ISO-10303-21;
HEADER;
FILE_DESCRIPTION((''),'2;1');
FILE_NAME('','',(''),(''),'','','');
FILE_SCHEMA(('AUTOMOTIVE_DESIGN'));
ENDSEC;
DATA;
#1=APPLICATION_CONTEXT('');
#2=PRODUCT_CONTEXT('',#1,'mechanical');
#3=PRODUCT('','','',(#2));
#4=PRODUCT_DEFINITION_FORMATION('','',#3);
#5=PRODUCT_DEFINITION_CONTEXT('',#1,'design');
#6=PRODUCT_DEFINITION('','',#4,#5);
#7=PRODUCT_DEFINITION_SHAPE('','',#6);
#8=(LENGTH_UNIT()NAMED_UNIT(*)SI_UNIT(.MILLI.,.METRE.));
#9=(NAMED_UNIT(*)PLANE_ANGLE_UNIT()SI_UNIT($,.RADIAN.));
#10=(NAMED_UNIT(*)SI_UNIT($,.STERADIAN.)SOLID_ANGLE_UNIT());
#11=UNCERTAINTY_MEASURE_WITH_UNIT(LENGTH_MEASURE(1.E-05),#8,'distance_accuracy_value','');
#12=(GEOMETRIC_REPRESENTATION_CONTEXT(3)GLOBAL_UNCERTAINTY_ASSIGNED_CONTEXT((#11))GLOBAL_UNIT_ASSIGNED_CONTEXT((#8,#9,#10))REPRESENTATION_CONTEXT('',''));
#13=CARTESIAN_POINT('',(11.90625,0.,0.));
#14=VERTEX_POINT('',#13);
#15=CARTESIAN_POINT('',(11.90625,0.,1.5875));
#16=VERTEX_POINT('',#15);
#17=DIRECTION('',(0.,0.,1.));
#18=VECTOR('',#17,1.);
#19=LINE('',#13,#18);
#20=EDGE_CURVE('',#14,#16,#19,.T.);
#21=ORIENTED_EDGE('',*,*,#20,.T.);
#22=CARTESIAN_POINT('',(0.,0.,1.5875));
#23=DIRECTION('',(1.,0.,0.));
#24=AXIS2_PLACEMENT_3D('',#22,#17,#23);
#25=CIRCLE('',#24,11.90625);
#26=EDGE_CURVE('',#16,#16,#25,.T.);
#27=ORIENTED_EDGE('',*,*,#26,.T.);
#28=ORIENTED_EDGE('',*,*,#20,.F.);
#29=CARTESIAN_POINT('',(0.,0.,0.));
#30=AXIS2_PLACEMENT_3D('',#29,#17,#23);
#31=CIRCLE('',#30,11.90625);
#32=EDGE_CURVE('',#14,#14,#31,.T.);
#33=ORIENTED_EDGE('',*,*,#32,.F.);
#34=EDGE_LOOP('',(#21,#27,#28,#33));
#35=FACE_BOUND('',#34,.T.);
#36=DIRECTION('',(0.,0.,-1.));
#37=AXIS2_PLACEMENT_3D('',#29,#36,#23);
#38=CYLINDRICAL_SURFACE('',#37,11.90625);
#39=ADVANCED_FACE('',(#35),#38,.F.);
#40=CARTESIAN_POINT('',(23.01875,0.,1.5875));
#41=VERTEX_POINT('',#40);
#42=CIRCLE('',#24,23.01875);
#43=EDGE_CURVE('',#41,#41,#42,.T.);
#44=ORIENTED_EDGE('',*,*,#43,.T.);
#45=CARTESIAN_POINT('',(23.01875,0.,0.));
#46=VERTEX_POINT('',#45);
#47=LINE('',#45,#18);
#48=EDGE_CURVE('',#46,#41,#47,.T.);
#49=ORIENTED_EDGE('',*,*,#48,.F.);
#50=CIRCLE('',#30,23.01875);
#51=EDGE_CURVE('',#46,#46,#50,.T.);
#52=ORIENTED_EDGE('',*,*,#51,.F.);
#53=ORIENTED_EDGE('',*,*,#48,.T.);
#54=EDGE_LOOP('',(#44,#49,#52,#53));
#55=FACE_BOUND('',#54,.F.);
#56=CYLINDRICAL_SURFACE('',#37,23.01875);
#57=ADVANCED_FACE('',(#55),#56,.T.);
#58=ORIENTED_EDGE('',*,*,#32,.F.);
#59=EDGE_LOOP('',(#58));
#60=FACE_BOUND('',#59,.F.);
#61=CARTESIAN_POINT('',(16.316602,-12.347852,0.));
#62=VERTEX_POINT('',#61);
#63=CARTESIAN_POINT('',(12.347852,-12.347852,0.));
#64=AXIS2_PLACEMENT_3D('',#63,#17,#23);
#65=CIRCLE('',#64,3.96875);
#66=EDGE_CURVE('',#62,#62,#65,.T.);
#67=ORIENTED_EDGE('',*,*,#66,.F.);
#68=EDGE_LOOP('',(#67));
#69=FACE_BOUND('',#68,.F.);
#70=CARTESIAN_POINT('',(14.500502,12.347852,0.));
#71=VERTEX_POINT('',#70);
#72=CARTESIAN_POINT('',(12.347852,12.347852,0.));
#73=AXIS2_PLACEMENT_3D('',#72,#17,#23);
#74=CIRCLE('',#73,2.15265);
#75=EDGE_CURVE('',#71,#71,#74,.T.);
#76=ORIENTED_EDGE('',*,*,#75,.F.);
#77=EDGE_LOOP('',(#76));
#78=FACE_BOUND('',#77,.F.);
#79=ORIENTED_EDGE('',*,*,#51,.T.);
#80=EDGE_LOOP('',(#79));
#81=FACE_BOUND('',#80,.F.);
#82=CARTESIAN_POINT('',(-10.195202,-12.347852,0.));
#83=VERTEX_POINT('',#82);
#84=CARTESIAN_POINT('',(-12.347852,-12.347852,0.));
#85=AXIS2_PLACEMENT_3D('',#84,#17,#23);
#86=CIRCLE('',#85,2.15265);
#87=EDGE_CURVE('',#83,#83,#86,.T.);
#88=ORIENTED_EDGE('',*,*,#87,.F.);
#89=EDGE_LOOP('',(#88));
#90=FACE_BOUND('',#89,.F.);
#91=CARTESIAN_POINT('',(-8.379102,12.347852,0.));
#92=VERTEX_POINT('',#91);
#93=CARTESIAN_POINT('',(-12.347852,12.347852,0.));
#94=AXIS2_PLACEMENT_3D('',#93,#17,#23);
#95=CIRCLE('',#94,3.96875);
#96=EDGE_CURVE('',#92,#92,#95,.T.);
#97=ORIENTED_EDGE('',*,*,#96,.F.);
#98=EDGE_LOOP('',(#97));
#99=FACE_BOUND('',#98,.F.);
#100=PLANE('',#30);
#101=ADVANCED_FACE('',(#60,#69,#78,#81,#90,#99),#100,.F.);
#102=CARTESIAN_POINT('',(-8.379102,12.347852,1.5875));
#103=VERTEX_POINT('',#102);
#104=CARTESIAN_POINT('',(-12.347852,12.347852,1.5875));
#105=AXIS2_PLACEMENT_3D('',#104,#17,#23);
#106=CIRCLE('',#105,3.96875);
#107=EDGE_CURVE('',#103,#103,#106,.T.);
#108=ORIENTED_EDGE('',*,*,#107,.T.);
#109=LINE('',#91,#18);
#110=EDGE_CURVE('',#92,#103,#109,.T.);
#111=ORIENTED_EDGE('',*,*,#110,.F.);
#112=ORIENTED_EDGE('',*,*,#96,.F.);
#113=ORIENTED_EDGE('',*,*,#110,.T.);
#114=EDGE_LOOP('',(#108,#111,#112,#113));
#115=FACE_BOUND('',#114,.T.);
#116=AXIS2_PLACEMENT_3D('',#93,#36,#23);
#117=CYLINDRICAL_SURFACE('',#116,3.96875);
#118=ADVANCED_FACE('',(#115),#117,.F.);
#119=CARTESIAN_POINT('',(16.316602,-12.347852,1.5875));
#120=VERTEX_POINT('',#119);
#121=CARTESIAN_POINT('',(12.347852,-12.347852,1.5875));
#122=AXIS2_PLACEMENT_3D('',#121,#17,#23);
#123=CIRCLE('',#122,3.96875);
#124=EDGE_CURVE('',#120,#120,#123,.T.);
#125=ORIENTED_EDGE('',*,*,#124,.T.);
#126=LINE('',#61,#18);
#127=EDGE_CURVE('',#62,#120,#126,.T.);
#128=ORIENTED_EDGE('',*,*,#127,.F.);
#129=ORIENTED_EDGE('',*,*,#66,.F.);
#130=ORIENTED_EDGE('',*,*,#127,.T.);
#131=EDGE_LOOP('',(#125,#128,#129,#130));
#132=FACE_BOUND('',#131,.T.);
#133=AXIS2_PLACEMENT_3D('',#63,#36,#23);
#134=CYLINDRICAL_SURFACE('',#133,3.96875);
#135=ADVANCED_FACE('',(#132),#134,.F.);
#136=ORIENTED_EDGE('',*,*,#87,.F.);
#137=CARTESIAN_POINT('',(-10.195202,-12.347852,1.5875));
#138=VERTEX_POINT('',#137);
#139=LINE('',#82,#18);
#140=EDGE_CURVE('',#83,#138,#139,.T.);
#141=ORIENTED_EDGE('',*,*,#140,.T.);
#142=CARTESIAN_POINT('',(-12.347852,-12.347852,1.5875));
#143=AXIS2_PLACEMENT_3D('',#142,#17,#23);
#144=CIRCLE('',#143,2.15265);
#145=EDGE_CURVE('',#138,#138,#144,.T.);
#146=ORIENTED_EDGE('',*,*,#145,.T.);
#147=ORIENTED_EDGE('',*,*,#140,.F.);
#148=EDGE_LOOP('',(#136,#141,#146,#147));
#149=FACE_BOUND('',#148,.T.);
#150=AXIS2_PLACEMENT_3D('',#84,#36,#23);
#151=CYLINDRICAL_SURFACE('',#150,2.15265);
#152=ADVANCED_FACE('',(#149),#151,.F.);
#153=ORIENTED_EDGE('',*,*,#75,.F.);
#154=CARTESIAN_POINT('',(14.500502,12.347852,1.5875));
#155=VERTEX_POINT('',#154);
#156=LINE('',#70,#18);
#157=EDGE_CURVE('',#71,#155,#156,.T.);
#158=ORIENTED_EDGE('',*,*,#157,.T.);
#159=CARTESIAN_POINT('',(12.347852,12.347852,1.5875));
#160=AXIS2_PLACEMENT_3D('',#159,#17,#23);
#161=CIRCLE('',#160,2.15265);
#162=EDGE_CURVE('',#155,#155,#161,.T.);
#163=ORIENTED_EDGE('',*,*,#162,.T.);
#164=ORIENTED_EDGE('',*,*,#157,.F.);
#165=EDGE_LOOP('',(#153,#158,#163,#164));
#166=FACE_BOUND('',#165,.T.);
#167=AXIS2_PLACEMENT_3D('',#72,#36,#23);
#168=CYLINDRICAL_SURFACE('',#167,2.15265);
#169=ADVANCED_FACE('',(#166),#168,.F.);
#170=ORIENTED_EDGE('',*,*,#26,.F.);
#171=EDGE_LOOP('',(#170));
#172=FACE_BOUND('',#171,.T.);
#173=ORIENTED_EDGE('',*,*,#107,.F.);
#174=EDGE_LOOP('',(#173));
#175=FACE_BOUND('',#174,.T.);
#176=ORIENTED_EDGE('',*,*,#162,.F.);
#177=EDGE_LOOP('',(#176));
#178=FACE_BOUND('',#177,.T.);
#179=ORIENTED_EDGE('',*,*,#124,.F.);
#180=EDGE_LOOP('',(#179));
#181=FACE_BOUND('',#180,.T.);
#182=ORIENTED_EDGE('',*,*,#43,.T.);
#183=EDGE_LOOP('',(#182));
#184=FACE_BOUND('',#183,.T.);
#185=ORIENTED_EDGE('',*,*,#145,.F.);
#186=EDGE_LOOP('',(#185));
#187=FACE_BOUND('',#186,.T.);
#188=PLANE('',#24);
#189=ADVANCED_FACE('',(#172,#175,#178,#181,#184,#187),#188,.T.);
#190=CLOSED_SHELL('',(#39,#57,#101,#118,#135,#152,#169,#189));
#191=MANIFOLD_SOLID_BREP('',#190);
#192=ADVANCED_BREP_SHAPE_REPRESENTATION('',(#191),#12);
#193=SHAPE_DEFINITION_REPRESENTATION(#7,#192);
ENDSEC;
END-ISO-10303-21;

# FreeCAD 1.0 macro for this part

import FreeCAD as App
import Part
import Sketcher
from FreeCAD import Vector
Q = App.Units.Quantity

doc = App.newDocument("Part")
body = doc.addObject("PartDesign::Body", "Body")

# Sketch on XY plane
sketch1 = body.newObject("Sketcher::SketchObject", "Sketch")
sketch1.AttachmentSupport = (doc.getObject("XY_Plane"), [""])
sketch1.MapMode = "FlatFace"
sketch1.addGeometry(Part.Circle(Vector(0, 0, 0), Vector(0, 0, 1), 23), False)
sketch1.addGeometry(Part.Circle(Vector(-12.3, -12.3, 0), Vector(0, 0, 1), 2.2), False)
sketch1.addGeometry(Part.Circle(Vector(12.3, -12.3, 0), Vector(0, 0, 1), 4), False)
sketch1.addGeometry(Part.Circle(Vector(0, 0, 0), Vector(0, 0, 1), 11.9), False)
sketch1.addGeometry(Part.Circle(Vector(-12.3, 12.3, 0), Vector(0, 0, 1), 4), False)
sketch1.addGeometry(Part.Circle(Vector(12.3, 12.3, 0), Vector(0, 0, 1), 2.2), False)
sketch1.addConstraint(Sketcher.Constraint("Coincident", 0, 3, -1, 1))
sketch1.addConstraint(Sketcher.Constraint("Coincident", 3, 3, -1, 1))
sketch1.addConstraint(Sketcher.Constraint("Equal", 2, 4))
sketch1.addConstraint(Sketcher.Constraint("Equal", 1, 5))
sketch1.addConstraint(Sketcher.Constraint("Symmetric", 2, 3, 4, 3, -1, 1))
sketch1.addConstraint(Sketcher.Constraint("Symmetric", 1, 3, 5, 3, -1, 1))
sketch1.addConstraint(Sketcher.Constraint("Symmetric", 1, 3, 2, 3, -2))
sketch1.addConstraint(Sketcher.Constraint("Diameter", 0, Q("1.8125 in")))
sketch1.addConstraint(Sketcher.Constraint("Diameter", 2, Q("0.3125 in")))
sketch1.addConstraint(Sketcher.Constraint("Diameter", 3, Q("0.9375 in")))
sketch1.addConstraint(Sketcher.Constraint("Diameter", 1, Q("0.1695 in")))
sketch1.addConstraint(Sketcher.Constraint("DistanceX", 1, 3, -1, 1, 12.347852))
sketch1.addConstraint(Sketcher.Constraint("DistanceY", 1, 3, -1, 1, 12.347852))
pad1 = body.newObject("PartDesign::Pad", "Pad")
pad1.Profile = sketch1
pad1.Length = Q("0.0625 in")

doc.recompute()
